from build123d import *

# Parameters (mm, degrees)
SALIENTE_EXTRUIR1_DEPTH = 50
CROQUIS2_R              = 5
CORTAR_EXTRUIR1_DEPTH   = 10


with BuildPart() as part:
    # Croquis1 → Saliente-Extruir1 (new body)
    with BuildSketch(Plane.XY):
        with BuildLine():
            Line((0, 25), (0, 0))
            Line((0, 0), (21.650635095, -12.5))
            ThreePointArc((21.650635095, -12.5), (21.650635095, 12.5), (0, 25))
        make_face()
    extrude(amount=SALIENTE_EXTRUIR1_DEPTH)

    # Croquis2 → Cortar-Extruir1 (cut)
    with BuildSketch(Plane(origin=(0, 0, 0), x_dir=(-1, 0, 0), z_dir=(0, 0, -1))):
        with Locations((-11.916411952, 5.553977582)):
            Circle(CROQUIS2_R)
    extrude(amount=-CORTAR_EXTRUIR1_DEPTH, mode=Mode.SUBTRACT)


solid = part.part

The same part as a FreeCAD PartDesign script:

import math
import FreeCAD as App
import Part
import Sketcher

V = App.Vector
Q = App.Units.Quantity

doc = App.newDocument("Part")
body = doc.addObject("PartDesign::Body", "Body")

# Sketch on XY plane
sketch1 = body.newObject("Sketcher::SketchObject", "Sketch")
sketch1.AttachmentSupport = (doc.getObject("XY_Plane"), [""])
sketch1.MapMode = "FlatFace"
sketch1.addGeometry(Part.LineSegment(V(0, 25, 0), V(0, 0, 0)), False)
sketch1.addGeometry(Part.LineSegment(V(0, 0, 0), V(22, -12, 0)), False)
sketch1.addGeometry(Part.ArcOfCircle(Part.Circle(V(0, 0, 0), V(0, 0, 1), 25), math.radians(-30), math.radians(90)), False)
sketch1.addConstraint(Sketcher.Constraint("Coincident", 0, 2, 1, 1))
sketch1.addConstraint(Sketcher.Constraint("Coincident", 1, 2, 2, 1))
sketch1.addConstraint(Sketcher.Constraint("Coincident", 2, 2, 0, 1))
sketch1.addConstraint(Sketcher.Constraint("Vertical", 0))
sketch1.addConstraint(Sketcher.Constraint("Coincident", 2, 3, -1, 1))
sketch1.addConstraint(Sketcher.Constraint("Coincident", 0, 2, -1, 1))
sketch1.addConstraint(Sketcher.Constraint("Radius", 2, 25.0))
sketch1.addConstraint(Sketcher.Constraint("Angle", 1, Q("-30 deg")))
pad1 = body.newObject("PartDesign::Pad", "Pad")
pad1.Profile = sketch1
pad1.Length = 50

# Sketch on XY plane
sketch2 = body.newObject("Sketcher::SketchObject", "Sketch001")
sketch2.AttachmentSupport = (doc.getObject("XY_Plane"), [""])
sketch2.MapMode = "FlatFace"
sketch2.addGeometry(Part.Circle(V(12, 6, 0), V(0, 0, 1), 5), False)
sketch2.addConstraint(Sketcher.Constraint("Diameter", 0, 10.0))
sketch2.addConstraint(Sketcher.Constraint("DistanceX", -1, 1, 0, 3, 11.916412))
sketch2.addConstraint(Sketcher.Constraint("DistanceY", -1, 1, 0, 3, 5.553978))
pocket1 = body.newObject("PartDesign::Pocket", "Pocket")
pocket1.Profile = sketch2
pocket1.Length = 10
pocket1.Reversed = True

doc.recompute()
